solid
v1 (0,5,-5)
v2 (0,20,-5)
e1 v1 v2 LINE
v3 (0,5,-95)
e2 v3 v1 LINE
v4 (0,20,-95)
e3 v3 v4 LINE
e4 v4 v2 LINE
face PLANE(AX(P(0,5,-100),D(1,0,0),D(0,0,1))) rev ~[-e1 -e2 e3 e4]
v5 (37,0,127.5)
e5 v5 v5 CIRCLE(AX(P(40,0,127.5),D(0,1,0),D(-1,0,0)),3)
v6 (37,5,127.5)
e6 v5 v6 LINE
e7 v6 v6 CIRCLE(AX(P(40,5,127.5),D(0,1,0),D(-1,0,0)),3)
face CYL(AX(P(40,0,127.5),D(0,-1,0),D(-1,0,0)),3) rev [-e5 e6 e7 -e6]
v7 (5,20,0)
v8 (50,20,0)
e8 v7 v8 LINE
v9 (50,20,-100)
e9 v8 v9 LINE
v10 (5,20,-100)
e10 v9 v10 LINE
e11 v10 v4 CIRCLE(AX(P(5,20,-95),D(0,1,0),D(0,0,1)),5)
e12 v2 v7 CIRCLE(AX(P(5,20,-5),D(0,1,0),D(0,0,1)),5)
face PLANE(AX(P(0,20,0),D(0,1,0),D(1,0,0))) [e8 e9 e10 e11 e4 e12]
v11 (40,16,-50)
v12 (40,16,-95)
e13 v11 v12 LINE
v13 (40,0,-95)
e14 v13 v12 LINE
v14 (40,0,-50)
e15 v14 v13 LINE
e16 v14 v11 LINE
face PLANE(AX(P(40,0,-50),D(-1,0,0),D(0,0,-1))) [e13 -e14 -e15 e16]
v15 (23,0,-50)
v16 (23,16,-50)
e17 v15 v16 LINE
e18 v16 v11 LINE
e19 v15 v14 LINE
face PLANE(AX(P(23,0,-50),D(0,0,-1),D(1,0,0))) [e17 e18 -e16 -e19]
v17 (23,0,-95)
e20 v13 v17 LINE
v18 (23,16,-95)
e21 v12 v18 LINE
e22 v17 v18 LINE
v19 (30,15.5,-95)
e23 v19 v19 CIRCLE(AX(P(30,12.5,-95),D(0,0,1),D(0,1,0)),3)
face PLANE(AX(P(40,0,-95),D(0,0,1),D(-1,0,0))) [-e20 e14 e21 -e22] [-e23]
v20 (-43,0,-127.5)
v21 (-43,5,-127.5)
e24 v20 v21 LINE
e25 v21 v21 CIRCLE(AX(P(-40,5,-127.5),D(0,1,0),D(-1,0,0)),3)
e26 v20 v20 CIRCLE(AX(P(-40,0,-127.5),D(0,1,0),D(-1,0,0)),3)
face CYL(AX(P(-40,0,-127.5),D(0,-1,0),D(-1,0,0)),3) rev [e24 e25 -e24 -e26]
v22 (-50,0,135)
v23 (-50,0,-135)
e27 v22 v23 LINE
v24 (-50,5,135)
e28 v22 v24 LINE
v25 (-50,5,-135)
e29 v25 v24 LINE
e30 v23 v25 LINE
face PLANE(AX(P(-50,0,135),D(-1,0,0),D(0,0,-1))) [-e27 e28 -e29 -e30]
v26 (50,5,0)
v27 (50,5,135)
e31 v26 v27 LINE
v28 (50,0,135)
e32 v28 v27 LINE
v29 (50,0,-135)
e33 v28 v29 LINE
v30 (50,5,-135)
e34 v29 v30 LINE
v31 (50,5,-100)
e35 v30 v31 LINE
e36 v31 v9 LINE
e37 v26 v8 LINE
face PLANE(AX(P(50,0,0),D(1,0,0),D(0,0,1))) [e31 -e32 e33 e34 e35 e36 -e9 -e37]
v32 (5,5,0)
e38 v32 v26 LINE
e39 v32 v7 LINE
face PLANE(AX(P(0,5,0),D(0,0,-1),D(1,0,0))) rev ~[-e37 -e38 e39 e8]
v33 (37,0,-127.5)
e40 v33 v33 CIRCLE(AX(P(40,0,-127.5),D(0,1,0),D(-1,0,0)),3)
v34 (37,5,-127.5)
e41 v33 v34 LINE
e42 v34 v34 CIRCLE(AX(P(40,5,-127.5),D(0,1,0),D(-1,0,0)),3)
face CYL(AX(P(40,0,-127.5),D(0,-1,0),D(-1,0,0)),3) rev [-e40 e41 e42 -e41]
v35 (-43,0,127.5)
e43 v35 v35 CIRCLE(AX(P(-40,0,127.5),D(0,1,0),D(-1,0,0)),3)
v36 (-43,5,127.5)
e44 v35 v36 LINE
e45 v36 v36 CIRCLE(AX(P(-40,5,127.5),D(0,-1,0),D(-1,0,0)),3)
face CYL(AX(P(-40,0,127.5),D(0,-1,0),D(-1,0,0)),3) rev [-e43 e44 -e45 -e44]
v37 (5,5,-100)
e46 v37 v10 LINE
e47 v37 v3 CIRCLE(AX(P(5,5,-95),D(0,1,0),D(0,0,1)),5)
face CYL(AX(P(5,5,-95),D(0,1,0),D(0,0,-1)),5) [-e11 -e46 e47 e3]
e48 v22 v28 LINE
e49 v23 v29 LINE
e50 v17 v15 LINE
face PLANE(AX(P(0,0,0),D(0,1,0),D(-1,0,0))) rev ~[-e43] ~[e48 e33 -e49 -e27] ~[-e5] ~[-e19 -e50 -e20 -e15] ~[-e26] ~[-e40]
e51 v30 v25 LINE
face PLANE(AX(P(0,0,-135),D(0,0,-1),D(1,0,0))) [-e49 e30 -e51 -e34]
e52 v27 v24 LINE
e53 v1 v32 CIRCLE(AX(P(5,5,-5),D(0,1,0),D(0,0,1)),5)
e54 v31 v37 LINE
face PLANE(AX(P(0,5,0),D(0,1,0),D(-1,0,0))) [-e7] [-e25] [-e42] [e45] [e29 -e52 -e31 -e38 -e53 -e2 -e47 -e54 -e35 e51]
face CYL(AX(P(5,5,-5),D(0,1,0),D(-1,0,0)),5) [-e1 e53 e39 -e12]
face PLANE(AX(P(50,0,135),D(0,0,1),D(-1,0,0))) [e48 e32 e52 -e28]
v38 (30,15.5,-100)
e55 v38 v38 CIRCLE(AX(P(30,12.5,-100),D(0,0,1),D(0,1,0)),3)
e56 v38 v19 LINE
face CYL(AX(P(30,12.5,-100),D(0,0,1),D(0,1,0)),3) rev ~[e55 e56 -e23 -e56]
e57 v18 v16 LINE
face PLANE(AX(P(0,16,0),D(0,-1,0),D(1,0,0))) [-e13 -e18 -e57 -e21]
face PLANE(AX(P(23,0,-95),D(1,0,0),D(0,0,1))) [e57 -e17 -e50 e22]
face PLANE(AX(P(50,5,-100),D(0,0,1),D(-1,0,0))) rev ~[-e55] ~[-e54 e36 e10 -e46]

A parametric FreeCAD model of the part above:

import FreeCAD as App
import Part
import Sketcher
Q = App.Units.Quantity


def edges_at(feature, points):
    """Names of the edges that pass closest to the given points."""
    edges = feature.Shape.Edges
    near = lambda p: min(range(len(edges)), key=lambda i: edges[i].distToShape(Part.Vertex(*p))[0])
    return sorted({f"Edge{near(p) + 1}" for p in points})

doc = App.newDocument("Part")
body = doc.addObject("PartDesign::Body", "Body")

sketch1 = doc.addObject("Sketcher::SketchObject", "Sketch")
body.addObject(sketch1)
sketch1.AttachmentSupport = (doc.XZ_Plane, [""])
sketch1.MapMode = "FlatFace"
sketch1.addGeometry(Part.LineSegment(App.Vector(50, 135, 0), App.Vector(50, -135, 0)), False)
sketch1.addGeometry(Part.LineSegment(App.Vector(50, -135, 0), App.Vector(-50, -135, 0)), False)
sketch1.addGeometry(Part.LineSegment(App.Vector(-50, -135, 0), App.Vector(-50, 135, 0)), False)
sketch1.addGeometry(Part.LineSegment(App.Vector(-50, 135, 0), App.Vector(50, 135, 0)), False)
sketch1.addGeometry(Part.Circle(App.Vector(40, 127.5, 0), App.Vector(0, 0, 1), 3), False)
sketch1.addGeometry(Part.Circle(App.Vector(40, -127.5, 0), App.Vector(0, 0, 1), 3), False)
sketch1.addGeometry(Part.Circle(App.Vector(-40, 127.5, 0), App.Vector(0, 0, 1), 3), False)
sketch1.addGeometry(Part.Circle(App.Vector(-40, -127.5, 0), App.Vector(0, 0, 1), 3), False)
sketch1.addConstraint(Sketcher.Constraint("Coincident", 0, 2, 1, 1))
sketch1.addConstraint(Sketcher.Constraint("Coincident", 1, 2, 2, 1))
sketch1.addConstraint(Sketcher.Constraint("Coincident", 2, 2, 3, 1))
sketch1.addConstraint(Sketcher.Constraint("Coincident", 3, 2, 0, 1))
sketch1.addConstraint(Sketcher.Constraint("Vertical", 0))
sketch1.addConstraint(Sketcher.Constraint("Horizontal", 1))
sketch1.addConstraint(Sketcher.Constraint("Vertical", 2))
sketch1.addConstraint(Sketcher.Constraint("Horizontal", 3))
sketch1.addConstraint(Sketcher.Constraint("Equal", 4, 5))
sketch1.addConstraint(Sketcher.Constraint("Equal", 5, 6))
sketch1.addConstraint(Sketcher.Constraint("Equal", 6, 7))
sketch1.addConstraint(Sketcher.Constraint("Symmetric", 5, 3, 6, 3, -1, 1))
sketch1.addConstraint(Sketcher.Constraint("Symmetric", 4, 3, 7, 3, -1, 1))
sketch1.addConstraint(Sketcher.Constraint("Symmetric", 0, 2, 2, 2, -1, 1))
sketch1.addConstraint(Sketcher.Constraint("Symmetric", 4, 3, 6, 3, -2))
sketch1.addConstraint(Sketcher.Constraint("Diameter", 4, Q("6 mm")))
sketch1.addConstraint(Sketcher.Constraint("DistanceX", 1, 2, 1, 1, Q("100 mm")))
sketch1.addConstraint(Sketcher.Constraint("DistanceY", 0, 2, 0, 1, Q("270 mm")))
sketch1.addConstraint(Sketcher.Constraint("DistanceX", 6, 3, 4, 3, Q("80 mm")))
sketch1.addConstraint(Sketcher.Constraint("DistanceY", 0, 2, 5, 3, Q("7.5 mm")))
pad1 = doc.addObject("PartDesign::Pad", "Pad")
body.addObject(pad1)
pad1.Profile = sketch1
pad1.Length = 5
pad1.Reversed = True

sketch2 = doc.addObject("Sketcher::SketchObject", "Sketch001")
body.addObject(sketch2)
sketch2.AttachmentSupport = (doc.XZ_Plane, [""])
sketch2.MapMode = "FlatFace"
sketch2.AttachmentOffset = App.Placement(App.Vector(0, 0, -5), App.Rotation())
sketch2.addGeometry(Part.LineSegment(App.Vector(0, -100, 0), App.Vector(0, 0, 0)), False)
sketch2.addGeometry(Part.LineSegment(App.Vector(0, 0, 0), App.Vector(50, 0, 0)), False)
sketch2.addGeometry(Part.LineSegment(App.Vector(50, 0, 0), App.Vector(50, -100, 0)), False)
sketch2.addGeometry(Part.LineSegment(App.Vector(50, -100, 0), App.Vector(0, -100, 0)), False)
sketch2.addConstraint(Sketcher.Constraint("Coincident", 0, 2, 1, 1))
sketch2.addConstraint(Sketcher.Constraint("Coincident", 1, 2, 2, 1))
sketch2.addConstraint(Sketcher.Constraint("Coincident", 2, 2, 3, 1))
sketch2.addConstraint(Sketcher.Constraint("Coincident", 3, 2, 0, 1))
sketch2.addConstraint(Sketcher.Constraint("Vertical", 0))
sketch2.addConstraint(Sketcher.Constraint("Horizontal", 1))
sketch2.addConstraint(Sketcher.Constraint("Vertical", 2))
sketch2.addConstraint(Sketcher.Constraint("Horizontal", 3))
sketch2.addConstraint(Sketcher.Constraint("Coincident", 0, 2, -1, 1))
sketch2.addConstraint(Sketcher.Constraint("DistanceY", 0, 1, 0, 2, Q("100 mm")))
sketch2.addConstraint(Sketcher.Constraint("DistanceX", 1, 1, 1, 2, Q("50 mm")))
pad2 = doc.addObject("PartDesign::Pad", "Pad001")
body.addObject(pad2)
pad2.Profile = sketch2
pad2.Length = 15
pad2.Reversed = True
doc.recompute()

fillet = doc.addObject("PartDesign::Fillet", "Fillet")
body.addObject(fillet)
fillet.Base = (pad2, edges_at(pad2, [(0, 12.5, -100)]))
fillet.Radius = 5
doc.recompute()

fillet2 = doc.addObject("PartDesign::Fillet", "Fillet001")
body.addObject(fillet2)
fillet2.Base = (fillet, edges_at(fillet, [(0, 12.5, 0)]))
fillet2.Radius = 5

sketch3 = doc.addObject("Sketcher::SketchObject", "Sketch002")
body.addObject(sketch3)
sketch3.AttachmentSupport = (doc.XY_Plane, [""])
sketch3.MapMode = "FlatFace"
sketch3.AttachmentOffset = App.Placement(App.Vector(0, 0, -100), App.Rotation())
sketch3.addGeometry(Part.Circle(App.Vector(30, 12.5, 0), App.Vector(0, 0, 1), 3), False)
sketch3.addConstraint(Sketcher.Constraint("Diameter", 0, Q("6 mm")))
sketch3.addConstraint(Sketcher.Constraint("DistanceX", -1, 1, 0, 3, Q("30 mm")))
sketch3.addConstraint(Sketcher.Constraint("DistanceY", -1, 1, 0, 3, Q("12.5 mm")))
doc.recompute()
hole = doc.addObject("PartDesign::Hole", "Hole")
body.addObject(hole)
hole.Profile = sketch3
hole.ThreadType = "None"
hole.Diameter = 6
hole.DepthType = "Dimension"
hole.Depth = 20
hole.DrillPoint = "Angled"
hole.DrillPointAngle = 118
hole.Reversed = True

sketch4 = doc.addObject("Sketcher::SketchObject", "Sketch003")
body.addObject(sketch4)
sketch4.AttachmentSupport = (doc.XZ_Plane, [""])
sketch4.MapMode = "FlatFace"
sketch4.addGeometry(Part.LineSegment(App.Vector(23, -50, 0), App.Vector(23, -95, 0)), False)
sketch4.addGeometry(Part.LineSegment(App.Vector(23, -95, 0), App.Vector(40, -95, 0)), False)
sketch4.addGeometry(Part.LineSegment(App.Vector(40, -95, 0), App.Vector(40, -50, 0)), False)
sketch4.addGeometry(Part.LineSegment(App.Vector(40, -50, 0), App.Vector(23, -50, 0)), False)
sketch4.addConstraint(Sketcher.Constraint("Coincident", 0, 2, 1, 1))
sketch4.addConstraint(Sketcher.Constraint("Coincident", 1, 2, 2, 1))
sketch4.addConstraint(Sketcher.Constraint("Coincident", 2, 2, 3, 1))
sketch4.addConstraint(Sketcher.Constraint("Coincident", 3, 2, 0, 1))
sketch4.addConstraint(Sketcher.Constraint("Vertical", 0))
sketch4.addConstraint(Sketcher.Constraint("Horizontal", 1))
sketch4.addConstraint(Sketcher.Constraint("Vertical", 2))
sketch4.addConstraint(Sketcher.Constraint("Horizontal", 3))
sketch4.addConstraint(Sketcher.Constraint("DistanceX", 1, 1, 1, 2, Q("17 mm")))
sketch4.addConstraint(Sketcher.Constraint("DistanceY", 2, 2, -1, 1, Q("50 mm")))
sketch4.addConstraint(Sketcher.Constraint("DistanceY", 0, 2, 0, 1, Q("45 mm")))
sketch4.addConstraint(Sketcher.Constraint("DistanceX", -1, 1, 0, 2, Q("23 mm")))
pocket1 = doc.addObject("PartDesign::Pocket", "Pocket")
body.addObject(pocket1)
pocket1.Profile = sketch4
pocket1.Length = 16

doc.recompute()
